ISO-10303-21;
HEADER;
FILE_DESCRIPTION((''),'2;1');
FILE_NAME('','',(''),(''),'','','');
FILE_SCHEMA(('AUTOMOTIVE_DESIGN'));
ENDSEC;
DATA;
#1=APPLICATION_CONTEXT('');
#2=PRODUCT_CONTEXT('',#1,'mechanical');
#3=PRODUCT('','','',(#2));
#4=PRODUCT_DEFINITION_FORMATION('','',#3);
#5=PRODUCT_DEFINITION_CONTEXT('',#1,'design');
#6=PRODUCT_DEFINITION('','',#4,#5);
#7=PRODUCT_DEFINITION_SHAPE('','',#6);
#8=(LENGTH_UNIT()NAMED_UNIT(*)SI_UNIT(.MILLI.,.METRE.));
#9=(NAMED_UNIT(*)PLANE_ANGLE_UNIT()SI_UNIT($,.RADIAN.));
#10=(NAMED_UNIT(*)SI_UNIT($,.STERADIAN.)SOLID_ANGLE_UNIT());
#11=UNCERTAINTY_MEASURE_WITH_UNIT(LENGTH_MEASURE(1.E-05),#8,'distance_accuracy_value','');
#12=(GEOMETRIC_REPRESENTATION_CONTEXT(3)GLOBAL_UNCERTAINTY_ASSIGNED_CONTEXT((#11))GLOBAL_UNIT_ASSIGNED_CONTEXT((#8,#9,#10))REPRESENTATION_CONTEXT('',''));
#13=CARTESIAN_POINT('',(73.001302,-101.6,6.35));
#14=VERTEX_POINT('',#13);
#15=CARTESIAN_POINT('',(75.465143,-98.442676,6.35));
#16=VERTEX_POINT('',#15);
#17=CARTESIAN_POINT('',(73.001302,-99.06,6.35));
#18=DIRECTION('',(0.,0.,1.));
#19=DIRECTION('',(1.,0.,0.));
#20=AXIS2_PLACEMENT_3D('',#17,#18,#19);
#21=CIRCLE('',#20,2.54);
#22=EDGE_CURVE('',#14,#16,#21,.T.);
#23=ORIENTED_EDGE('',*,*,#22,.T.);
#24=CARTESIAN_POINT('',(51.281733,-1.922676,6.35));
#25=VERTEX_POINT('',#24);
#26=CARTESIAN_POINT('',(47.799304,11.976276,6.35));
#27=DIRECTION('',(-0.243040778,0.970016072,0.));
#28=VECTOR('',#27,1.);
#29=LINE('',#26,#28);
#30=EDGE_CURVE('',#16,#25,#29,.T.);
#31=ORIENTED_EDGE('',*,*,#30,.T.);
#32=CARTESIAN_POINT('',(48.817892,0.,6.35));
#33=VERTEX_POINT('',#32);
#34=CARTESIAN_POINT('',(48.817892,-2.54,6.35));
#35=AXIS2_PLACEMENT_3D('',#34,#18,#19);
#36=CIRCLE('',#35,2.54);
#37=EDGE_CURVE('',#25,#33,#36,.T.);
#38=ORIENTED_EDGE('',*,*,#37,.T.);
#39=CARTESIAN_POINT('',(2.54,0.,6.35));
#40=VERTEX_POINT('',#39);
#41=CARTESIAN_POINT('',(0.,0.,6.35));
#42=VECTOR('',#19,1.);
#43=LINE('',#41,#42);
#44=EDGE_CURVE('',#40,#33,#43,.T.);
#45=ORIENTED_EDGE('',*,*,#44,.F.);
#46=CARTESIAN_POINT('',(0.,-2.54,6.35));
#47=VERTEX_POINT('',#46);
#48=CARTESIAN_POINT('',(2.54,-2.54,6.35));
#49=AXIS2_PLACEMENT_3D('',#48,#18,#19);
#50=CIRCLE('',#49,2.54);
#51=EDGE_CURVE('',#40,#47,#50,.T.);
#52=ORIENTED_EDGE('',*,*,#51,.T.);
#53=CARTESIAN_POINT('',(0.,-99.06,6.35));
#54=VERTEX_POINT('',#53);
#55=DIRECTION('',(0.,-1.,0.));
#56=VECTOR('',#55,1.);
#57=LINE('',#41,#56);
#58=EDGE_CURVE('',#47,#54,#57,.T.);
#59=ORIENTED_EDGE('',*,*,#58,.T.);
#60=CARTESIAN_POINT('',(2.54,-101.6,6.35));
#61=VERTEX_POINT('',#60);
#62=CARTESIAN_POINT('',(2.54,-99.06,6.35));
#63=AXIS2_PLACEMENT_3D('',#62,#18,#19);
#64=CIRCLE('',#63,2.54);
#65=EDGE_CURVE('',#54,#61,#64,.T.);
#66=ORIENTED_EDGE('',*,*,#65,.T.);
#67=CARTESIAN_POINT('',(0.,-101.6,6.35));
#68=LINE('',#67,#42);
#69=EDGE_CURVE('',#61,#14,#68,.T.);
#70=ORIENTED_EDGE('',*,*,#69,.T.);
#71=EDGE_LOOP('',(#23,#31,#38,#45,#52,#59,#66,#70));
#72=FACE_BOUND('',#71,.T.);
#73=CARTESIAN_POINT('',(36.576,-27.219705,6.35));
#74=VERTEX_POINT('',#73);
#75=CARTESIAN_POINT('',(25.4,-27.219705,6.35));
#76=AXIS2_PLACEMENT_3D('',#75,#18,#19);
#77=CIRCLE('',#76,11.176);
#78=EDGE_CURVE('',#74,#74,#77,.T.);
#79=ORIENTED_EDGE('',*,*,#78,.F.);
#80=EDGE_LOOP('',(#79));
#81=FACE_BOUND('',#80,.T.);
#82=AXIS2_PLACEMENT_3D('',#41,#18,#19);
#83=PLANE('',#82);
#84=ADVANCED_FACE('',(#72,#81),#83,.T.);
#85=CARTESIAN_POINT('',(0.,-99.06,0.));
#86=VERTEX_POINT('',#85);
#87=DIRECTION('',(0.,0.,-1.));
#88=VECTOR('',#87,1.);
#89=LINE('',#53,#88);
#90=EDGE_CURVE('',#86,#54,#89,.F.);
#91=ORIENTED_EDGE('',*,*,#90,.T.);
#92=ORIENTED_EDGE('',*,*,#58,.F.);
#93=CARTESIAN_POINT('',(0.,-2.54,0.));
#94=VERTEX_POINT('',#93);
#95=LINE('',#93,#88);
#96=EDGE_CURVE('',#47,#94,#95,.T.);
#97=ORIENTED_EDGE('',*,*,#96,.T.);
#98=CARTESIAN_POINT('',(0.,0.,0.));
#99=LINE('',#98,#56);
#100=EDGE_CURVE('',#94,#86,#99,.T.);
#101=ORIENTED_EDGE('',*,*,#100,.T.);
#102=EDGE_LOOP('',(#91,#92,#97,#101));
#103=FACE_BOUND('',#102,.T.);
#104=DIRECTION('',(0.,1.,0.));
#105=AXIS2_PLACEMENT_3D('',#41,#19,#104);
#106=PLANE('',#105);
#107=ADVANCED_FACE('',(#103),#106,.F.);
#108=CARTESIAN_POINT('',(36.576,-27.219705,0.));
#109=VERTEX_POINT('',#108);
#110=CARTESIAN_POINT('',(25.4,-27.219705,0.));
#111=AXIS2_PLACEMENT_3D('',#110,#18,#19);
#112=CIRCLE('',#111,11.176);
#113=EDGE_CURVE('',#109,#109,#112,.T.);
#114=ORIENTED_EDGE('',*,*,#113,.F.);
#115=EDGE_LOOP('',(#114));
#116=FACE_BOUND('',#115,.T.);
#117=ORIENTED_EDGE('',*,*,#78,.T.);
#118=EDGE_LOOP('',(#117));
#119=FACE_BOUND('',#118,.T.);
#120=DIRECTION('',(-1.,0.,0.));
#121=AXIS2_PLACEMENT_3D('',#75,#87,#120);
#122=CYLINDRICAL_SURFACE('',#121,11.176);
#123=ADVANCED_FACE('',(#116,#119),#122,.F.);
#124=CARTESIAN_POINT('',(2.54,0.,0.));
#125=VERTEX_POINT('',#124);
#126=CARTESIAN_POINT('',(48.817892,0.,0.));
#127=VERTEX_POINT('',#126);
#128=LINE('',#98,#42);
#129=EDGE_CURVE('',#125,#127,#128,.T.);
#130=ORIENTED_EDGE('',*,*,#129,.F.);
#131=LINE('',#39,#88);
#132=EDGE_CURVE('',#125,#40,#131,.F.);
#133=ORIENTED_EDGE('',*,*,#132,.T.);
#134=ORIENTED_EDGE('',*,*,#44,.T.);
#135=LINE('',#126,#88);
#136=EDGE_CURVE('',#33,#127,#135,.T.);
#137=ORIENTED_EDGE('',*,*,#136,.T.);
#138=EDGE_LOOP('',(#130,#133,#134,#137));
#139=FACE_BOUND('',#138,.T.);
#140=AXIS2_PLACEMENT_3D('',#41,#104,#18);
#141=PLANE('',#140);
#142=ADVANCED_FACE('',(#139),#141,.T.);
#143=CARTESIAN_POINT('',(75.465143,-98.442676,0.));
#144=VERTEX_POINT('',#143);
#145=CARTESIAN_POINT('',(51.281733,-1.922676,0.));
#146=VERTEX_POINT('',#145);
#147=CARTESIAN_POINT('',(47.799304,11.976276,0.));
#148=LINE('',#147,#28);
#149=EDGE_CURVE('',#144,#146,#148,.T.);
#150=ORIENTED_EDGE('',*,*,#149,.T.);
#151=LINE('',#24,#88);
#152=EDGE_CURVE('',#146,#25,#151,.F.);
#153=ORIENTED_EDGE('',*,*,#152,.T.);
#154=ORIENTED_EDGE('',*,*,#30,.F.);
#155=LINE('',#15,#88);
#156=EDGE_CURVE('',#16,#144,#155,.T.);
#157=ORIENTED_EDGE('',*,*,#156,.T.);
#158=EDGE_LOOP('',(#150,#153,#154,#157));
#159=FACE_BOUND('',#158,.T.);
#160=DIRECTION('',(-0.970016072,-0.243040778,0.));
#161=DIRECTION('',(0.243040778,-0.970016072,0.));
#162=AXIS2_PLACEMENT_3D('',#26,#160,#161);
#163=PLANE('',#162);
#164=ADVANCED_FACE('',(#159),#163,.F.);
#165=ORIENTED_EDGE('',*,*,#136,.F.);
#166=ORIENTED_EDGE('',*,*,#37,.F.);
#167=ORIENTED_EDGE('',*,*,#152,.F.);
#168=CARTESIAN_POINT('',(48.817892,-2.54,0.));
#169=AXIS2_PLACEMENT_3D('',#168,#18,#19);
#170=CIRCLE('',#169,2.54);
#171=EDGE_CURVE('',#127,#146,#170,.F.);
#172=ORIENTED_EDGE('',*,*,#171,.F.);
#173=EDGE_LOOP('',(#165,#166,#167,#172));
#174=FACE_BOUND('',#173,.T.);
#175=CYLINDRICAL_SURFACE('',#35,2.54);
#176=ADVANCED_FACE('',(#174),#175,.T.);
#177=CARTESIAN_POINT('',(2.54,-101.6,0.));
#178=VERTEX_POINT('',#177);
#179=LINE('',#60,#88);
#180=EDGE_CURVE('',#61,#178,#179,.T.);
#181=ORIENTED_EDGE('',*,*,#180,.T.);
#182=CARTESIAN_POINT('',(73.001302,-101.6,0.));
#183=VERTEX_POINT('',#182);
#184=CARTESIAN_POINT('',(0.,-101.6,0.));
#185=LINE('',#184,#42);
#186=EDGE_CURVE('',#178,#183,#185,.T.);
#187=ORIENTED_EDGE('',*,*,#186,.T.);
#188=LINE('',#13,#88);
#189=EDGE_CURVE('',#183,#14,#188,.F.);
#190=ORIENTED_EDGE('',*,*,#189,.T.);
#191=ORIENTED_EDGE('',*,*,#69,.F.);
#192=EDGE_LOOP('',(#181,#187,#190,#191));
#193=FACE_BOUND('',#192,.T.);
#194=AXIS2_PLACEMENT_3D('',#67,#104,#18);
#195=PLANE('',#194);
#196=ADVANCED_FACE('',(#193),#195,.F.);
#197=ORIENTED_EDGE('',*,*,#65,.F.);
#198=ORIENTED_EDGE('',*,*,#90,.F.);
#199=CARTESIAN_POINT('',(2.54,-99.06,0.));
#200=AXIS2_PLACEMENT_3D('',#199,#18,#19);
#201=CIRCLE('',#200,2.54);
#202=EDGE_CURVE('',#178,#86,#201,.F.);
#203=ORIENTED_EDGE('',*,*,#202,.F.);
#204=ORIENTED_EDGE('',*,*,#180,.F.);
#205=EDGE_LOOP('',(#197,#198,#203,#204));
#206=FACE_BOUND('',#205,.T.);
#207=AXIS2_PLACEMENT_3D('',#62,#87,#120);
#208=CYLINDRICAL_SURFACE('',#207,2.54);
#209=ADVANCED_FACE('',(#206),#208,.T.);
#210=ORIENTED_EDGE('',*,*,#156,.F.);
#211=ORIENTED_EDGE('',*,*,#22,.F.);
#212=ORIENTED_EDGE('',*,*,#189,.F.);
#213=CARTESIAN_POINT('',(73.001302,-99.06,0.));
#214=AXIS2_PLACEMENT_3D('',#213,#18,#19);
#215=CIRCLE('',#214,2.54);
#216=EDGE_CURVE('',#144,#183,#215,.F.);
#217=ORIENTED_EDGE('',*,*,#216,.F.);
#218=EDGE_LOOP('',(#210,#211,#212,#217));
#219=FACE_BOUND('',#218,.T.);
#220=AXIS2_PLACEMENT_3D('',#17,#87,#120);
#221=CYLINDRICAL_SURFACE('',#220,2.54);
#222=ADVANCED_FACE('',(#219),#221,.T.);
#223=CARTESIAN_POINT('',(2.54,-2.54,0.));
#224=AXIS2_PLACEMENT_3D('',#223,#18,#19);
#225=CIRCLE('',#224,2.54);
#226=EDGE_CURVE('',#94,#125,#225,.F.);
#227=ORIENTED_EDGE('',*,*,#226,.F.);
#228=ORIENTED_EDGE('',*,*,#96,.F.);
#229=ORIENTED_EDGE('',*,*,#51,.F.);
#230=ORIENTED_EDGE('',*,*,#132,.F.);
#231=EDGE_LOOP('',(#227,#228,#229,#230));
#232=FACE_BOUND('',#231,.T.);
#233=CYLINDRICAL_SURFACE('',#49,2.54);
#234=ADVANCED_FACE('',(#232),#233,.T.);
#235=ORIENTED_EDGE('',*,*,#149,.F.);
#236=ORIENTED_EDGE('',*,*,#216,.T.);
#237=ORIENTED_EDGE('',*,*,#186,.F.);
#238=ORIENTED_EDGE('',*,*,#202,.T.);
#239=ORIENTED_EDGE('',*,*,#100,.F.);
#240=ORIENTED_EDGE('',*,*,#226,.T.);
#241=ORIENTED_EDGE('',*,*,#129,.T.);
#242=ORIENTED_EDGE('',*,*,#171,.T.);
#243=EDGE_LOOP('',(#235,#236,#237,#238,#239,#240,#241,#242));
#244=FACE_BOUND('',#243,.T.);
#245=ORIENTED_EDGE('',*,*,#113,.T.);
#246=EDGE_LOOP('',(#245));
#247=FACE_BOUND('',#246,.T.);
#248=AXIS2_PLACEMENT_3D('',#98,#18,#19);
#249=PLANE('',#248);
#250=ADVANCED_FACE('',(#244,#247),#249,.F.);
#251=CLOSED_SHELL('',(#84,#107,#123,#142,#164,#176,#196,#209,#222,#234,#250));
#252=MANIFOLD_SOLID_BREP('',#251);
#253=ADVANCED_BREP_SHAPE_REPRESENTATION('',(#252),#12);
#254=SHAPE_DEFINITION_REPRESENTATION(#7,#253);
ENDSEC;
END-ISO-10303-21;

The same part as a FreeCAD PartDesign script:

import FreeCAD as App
import Part
import Sketcher
from FreeCAD import Vector
Q = App.Units.Quantity


def edges_at(feature, points):
    """Names of the edges that pass closest to the given points."""
    edges = feature.Shape.Edges
    near = lambda p: min(range(len(edges)), key=lambda i: edges[i].distToShape(Part.Vertex(*p))[0])
    return sorted({f"Edge{near(p) + 1}" for p in points})


def add_polygon(sketch, points):
    """Adds a closed chain of lines whose ends are joined by coincident constraints."""
    first, n = sketch.GeometryCount, len(points)
    for a, b in zip(points, points[1:] + points[:1]):
        sketch.addGeometry(Part.LineSegment(App.Vector(*a, 0), App.Vector(*b, 0)), False)
    for i in range(n):
        sketch.addConstraint(Sketcher.Constraint("Coincident", first + i, 2, first + (i + 1) % n, 1))

doc = App.newDocument("Part")
body = doc.addObject("PartDesign::Body", "Body")

# Sketch on XY plane
sketch1 = body.newObject("Sketcher::SketchObject", "Sketch")
sketch1.AttachmentSupport = (doc.getObject("XY_Plane"), [""])
sketch1.MapMode = "FlatFace"
add_polygon(sketch1, [(0, 0), (0, -101.6), (76.256221, -101.6), (50.8, 0)])  # lines 0-3
sketch1.addGeometry(Part.Circle(Vector(25.4, -27.219705, 0), Vector(0, 0, 1), 11.176), False)  # 4
sketch1.addConstraint(Sketcher.Constraint("Vertical", 0))
sketch1.addConstraint(Sketcher.Constraint("Horizontal", 1))
sketch1.addConstraint(Sketcher.Constraint("Horizontal", 3))
sketch1.addConstraint(Sketcher.Constraint("Coincident", 3, 2, -1, 1))
sketch1.addConstraint(Sketcher.Constraint("Diameter", 4, Q("0.88 in")))
sketch1.addConstraint(Sketcher.Constraint("DistanceX", 3, 2, 3, 1, Q("2 in")))
sketch1.addConstraint(Sketcher.Constraint("DistanceY", 0, 2, 0, 1, Q("4 in")))
sketch1.addConstraint(Sketcher.Constraint("DistanceX", -1, 1, 4, 3, Q("1 in")))
sketch1.addConstraint(Sketcher.Constraint("DistanceX", 1, 1, 1, 2, 76.256221))
sketch1.addConstraint(Sketcher.Constraint("DistanceY", 4, 3, -1, 1, 27.219705))
pad1 = body.newObject("PartDesign::Pad", "Pad")
pad1.Profile = sketch1
pad1.Length = Q("0.25 in")
doc.recompute()

fillet = body.newObject("PartDesign::Fillet", "Fillet")
fillet.Base = (pad1, edges_at(pad1, [
    (0, -101.6, 3.175),
    (0, 0, 3.175),
    (50.8, 0, 3.175),
    (76.256, -101.6, 3.175),
]))
fillet.Radius = Q("0.1 in")

doc.recompute()
